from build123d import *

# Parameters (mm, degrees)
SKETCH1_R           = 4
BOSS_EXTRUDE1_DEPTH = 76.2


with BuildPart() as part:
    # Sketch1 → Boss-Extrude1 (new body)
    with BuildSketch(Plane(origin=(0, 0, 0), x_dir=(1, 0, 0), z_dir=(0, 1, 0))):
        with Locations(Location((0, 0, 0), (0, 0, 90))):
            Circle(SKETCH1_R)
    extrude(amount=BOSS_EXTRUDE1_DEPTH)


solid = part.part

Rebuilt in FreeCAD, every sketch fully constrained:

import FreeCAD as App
import Part
import Sketcher

doc = App.newDocument("Part")
params = doc.addObject("Spreadsheet::Sheet", "Params")
for row, (alias, value) in enumerate([
    ("sketch1_diameter", "8 mm"),
    ("pad1_length", "76.2 mm"),
], start=1):
    params.set(f"A{row}", alias)
    params.set(f"B{row}", "=" + value)
    params.setAlias(f"B{row}", alias)

body = doc.addObject("PartDesign::Body", "Body")

sketch1 = body.newObject("Sketcher::SketchObject", "Sketch")
sketch1.AttachmentSupport = (doc.getObject("XZ_Plane"), [""])
sketch1.MapMode = "FlatFace"
sketch1.addGeometry(Part.Circle(App.Vector(0, 0, 0), App.Vector(0, 0, 1), 4), False)
sketch1.addConstraint([
    Sketcher.Constraint("Coincident", 0, 3, -1, 1),
    Sketcher.Constraint("Diameter", 0, 8.0),
])
sketch1.setExpression("Constraints[1]", "Params.sketch1_diameter")
pad1 = body.newObject("PartDesign::Pad", "Pad")
pad1.Profile = sketch1
pad1.setExpression("Length", "Params.pad1_length")
pad1.Reversed = True

doc.recompute()
